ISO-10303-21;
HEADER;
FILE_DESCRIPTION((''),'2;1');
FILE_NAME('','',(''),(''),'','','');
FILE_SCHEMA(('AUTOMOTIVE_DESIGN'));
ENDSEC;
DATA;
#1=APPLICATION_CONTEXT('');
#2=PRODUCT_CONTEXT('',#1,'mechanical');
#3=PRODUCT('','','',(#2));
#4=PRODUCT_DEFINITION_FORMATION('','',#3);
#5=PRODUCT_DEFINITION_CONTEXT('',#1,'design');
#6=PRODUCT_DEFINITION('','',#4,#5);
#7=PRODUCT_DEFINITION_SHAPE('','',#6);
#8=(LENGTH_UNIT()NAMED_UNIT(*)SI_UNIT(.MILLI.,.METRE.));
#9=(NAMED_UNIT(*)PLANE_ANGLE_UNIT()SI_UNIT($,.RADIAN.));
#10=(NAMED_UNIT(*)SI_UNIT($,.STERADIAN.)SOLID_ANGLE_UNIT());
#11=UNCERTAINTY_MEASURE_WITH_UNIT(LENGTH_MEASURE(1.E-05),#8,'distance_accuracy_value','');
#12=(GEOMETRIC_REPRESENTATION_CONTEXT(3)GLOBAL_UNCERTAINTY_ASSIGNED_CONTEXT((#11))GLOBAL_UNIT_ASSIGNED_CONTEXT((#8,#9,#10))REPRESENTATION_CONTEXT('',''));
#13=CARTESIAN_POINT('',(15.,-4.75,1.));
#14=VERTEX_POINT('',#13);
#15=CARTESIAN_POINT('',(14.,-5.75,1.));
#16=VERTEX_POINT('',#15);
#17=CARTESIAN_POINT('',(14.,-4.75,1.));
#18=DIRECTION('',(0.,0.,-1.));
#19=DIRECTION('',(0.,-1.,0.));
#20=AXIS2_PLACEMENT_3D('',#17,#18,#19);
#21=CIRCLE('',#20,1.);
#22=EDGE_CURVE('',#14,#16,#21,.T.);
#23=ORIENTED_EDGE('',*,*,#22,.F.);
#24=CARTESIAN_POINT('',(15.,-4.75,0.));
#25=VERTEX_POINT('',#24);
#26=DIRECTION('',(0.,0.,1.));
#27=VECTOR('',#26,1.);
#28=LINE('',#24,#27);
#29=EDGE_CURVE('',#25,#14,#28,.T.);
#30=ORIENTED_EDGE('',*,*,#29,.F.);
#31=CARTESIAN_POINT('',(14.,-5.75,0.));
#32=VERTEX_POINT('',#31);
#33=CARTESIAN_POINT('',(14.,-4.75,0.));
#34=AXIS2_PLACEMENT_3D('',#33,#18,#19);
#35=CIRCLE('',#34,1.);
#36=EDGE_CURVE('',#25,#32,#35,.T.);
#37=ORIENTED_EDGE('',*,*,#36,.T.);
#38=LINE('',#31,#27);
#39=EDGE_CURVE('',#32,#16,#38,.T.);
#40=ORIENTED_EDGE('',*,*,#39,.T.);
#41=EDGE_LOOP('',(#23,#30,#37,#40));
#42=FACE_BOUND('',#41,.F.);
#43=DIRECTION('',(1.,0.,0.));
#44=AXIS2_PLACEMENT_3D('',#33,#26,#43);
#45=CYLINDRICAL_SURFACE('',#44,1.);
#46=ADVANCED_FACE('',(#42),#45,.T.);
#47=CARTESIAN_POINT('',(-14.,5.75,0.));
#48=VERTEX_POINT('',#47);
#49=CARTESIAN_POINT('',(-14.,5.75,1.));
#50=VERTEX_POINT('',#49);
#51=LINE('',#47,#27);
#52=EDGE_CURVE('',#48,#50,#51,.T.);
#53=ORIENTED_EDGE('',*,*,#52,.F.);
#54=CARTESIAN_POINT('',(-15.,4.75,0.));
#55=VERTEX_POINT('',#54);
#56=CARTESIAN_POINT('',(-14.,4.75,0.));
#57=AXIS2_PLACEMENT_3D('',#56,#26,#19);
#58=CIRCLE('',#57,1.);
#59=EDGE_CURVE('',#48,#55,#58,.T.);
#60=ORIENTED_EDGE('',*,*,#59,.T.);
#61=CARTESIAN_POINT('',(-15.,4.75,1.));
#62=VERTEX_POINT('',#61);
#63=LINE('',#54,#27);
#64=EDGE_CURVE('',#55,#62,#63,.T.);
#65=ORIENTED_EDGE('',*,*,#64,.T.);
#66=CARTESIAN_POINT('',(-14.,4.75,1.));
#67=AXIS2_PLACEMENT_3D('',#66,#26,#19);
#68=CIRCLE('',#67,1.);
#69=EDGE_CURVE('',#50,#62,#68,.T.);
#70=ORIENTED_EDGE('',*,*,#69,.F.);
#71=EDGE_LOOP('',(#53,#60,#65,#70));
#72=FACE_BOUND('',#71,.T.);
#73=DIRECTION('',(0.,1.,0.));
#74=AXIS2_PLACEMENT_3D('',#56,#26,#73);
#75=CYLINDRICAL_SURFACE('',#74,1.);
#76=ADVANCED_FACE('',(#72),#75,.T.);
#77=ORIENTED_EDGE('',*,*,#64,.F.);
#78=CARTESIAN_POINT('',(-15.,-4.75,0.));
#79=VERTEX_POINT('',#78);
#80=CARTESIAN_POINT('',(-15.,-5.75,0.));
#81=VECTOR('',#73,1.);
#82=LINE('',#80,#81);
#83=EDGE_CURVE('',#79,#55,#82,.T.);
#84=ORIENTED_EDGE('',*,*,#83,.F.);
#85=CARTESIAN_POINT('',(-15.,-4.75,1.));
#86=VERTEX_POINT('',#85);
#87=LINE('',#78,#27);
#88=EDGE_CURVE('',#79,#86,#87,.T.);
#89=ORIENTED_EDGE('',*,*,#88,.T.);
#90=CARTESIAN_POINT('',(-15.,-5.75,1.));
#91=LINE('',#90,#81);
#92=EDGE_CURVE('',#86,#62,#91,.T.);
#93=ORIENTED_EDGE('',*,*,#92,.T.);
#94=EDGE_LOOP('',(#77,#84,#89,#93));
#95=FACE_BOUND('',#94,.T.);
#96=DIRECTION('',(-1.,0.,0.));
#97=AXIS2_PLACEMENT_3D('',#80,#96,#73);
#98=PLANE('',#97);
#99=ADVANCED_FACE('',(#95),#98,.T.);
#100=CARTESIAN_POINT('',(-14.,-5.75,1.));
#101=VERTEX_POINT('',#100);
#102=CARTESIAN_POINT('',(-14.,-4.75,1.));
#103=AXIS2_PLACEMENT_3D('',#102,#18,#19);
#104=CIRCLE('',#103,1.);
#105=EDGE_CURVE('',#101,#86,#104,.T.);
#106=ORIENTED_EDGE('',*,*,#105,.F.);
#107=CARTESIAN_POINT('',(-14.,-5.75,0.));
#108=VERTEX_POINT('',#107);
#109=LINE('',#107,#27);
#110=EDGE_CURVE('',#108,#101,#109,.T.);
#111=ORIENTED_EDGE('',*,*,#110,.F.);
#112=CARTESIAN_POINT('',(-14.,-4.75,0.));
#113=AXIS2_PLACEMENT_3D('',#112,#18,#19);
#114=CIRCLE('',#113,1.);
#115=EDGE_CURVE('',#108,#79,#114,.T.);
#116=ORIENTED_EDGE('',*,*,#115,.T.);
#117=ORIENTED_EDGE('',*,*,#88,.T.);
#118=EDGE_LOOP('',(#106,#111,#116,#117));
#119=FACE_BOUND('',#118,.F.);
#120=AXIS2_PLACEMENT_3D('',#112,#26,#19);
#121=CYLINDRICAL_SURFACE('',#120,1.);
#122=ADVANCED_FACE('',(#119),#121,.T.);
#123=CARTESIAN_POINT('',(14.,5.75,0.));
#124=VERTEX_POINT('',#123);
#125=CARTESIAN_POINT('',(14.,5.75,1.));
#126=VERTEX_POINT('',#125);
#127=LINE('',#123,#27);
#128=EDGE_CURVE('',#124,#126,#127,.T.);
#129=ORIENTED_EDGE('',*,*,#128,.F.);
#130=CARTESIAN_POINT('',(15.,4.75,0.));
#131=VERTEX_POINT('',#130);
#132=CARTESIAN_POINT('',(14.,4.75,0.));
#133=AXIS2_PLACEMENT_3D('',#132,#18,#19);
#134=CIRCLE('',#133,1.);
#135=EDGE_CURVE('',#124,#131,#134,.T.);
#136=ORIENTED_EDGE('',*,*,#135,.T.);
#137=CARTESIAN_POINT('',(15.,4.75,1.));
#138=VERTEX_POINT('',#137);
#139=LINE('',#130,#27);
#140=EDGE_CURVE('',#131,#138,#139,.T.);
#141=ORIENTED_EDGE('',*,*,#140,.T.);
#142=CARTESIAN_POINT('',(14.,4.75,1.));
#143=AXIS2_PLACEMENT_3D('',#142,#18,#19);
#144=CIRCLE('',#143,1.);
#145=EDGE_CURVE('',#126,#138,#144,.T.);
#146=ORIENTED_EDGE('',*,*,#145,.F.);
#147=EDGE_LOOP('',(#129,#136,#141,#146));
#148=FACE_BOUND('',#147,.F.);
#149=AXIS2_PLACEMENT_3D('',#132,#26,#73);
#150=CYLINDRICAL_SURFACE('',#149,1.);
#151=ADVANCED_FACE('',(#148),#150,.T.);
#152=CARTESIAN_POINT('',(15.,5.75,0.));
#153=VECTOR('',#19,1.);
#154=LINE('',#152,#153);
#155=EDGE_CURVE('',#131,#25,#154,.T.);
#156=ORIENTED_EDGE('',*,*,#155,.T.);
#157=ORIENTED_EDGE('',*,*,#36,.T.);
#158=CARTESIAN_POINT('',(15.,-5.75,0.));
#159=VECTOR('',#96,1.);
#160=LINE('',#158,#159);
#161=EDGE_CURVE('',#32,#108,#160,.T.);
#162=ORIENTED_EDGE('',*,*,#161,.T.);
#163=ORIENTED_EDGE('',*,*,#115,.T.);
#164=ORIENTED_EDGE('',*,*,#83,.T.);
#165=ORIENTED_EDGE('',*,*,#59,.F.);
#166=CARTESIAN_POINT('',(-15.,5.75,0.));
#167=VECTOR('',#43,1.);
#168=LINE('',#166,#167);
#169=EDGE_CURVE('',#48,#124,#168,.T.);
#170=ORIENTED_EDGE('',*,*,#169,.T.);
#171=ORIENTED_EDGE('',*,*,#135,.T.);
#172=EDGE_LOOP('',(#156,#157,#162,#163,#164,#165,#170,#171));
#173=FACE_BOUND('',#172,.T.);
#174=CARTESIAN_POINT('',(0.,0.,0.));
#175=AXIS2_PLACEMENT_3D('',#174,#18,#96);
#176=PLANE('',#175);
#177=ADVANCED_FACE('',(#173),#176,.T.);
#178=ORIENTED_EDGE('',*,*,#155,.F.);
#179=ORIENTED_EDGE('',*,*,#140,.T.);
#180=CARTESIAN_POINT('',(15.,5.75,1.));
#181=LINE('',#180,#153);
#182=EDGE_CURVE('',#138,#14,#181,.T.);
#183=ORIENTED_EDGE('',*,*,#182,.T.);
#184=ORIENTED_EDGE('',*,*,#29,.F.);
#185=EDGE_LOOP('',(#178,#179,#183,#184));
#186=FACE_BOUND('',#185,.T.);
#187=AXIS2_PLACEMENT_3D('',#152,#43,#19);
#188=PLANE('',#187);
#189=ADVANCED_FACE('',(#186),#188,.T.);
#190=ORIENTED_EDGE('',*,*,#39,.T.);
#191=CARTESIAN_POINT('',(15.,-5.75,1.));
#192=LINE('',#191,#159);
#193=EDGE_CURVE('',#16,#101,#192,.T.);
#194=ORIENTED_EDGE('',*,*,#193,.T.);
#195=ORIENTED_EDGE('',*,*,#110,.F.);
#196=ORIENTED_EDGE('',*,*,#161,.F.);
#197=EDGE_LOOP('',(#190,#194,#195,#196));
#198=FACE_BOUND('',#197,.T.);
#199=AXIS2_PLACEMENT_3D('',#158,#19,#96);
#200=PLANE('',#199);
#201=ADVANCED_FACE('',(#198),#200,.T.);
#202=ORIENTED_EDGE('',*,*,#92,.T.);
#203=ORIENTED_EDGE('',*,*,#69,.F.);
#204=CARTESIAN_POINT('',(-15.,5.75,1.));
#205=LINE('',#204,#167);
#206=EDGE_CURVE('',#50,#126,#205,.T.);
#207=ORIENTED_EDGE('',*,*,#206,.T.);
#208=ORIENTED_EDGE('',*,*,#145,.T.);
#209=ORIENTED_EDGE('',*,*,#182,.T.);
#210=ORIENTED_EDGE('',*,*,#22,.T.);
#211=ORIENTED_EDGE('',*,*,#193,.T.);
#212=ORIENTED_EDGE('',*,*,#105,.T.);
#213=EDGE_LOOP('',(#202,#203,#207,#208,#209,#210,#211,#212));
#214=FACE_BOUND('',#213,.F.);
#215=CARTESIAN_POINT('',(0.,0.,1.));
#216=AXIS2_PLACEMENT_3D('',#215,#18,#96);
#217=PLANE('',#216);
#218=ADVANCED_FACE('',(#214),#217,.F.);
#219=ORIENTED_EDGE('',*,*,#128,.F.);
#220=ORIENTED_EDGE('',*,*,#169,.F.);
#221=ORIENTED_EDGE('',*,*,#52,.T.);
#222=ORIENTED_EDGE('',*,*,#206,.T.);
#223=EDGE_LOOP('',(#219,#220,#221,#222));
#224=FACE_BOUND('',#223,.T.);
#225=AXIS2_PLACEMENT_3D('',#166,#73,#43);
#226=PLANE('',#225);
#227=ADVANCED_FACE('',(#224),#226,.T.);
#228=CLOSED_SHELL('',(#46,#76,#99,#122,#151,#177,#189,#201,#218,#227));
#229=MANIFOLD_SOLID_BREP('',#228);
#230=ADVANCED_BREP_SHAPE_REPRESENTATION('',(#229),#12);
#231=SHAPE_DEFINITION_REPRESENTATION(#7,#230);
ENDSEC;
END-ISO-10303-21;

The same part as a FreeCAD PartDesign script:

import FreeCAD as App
import Part
import Sketcher


def edges_at(feature, points):
    """Names of the edges that pass closest to the given points."""
    edges = feature.Shape.Edges
    near = lambda p: min(range(len(edges)), key=lambda i: edges[i].distToShape(Part.Vertex(*p))[0])
    return sorted({f"Edge{near(p) + 1}" for p in points})

doc = App.newDocument("Part")
params = doc.addObject("Spreadsheet::Sheet", "Params")
for row, (alias, value) in enumerate([
    ("sketch1_height", "11.5 mm"),
    ("pad1_length", "1 mm"),
    ("fillet_radius", "1 mm"),
], start=1):
    params.set(f"A{row}", alias)
    params.set(f"B{row}", "=" + value)
    params.setAlias(f"B{row}", alias)

body = doc.addObject("PartDesign::Body", "Body")

# Sketch on XY plane
sketch1 = doc.addObject("Sketcher::SketchObject", "Sketch")
body.addObject(sketch1)
sketch1.AttachmentSupport = (doc.XY_Plane, [""])
sketch1.MapMode = "FlatFace"
sketch1.addGeometry([
    Part.LineSegment(App.Vector(15, 6, 0), App.Vector(-15, 6, 0)),
    Part.LineSegment(App.Vector(-15, 6, 0), App.Vector(-15, -6, 0)),
    Part.LineSegment(App.Vector(-15, -6, 0), App.Vector(15, -6, 0)),
    Part.LineSegment(App.Vector(15, -6, 0), App.Vector(15, 6, 0)),
], False)
sketch1.addConstraint([
    Sketcher.Constraint("Coincident", 0, 2, 1, 1),
    Sketcher.Constraint("Coincident", 1, 2, 2, 1),
    Sketcher.Constraint("Coincident", 2, 2, 3, 1),
    Sketcher.Constraint("Coincident", 3, 2, 0, 1),
    Sketcher.Constraint("Horizontal", 0),
    Sketcher.Constraint("Vertical", 1),
    Sketcher.Constraint("Horizontal", 2),
    Sketcher.Constraint("Vertical", 3),
    Sketcher.Constraint("Symmetric", 0, 2, 2, 2, -1, 1),
    Sketcher.Constraint("DistanceX", 0, 2, -1, 1, 15.0),
    Sketcher.Constraint("DistanceY", 1, 2, 1, 1, 11.5),
])
sketch1.setExpression("Constraints[10]", "Params.sketch1_height")
pad1 = doc.addObject("PartDesign::Pad", "Pad")
body.addObject(pad1)
pad1.Profile = sketch1
pad1.setExpression("Length", "Params.pad1_length")
doc.recompute()

fillet = doc.addObject("PartDesign::Fillet", "Fillet")
body.addObject(fillet)
fillet.Base = (pad1, edges_at(pad1, [
    (-15, -5.75, 0.5),
    (15, -5.75, 0.5),
    (15, 5.75, 0.5),
    (-15, 5.75, 0.5),
]))
fillet.setExpression("Radius", "Params.fillet_radius")

doc.recompute()
